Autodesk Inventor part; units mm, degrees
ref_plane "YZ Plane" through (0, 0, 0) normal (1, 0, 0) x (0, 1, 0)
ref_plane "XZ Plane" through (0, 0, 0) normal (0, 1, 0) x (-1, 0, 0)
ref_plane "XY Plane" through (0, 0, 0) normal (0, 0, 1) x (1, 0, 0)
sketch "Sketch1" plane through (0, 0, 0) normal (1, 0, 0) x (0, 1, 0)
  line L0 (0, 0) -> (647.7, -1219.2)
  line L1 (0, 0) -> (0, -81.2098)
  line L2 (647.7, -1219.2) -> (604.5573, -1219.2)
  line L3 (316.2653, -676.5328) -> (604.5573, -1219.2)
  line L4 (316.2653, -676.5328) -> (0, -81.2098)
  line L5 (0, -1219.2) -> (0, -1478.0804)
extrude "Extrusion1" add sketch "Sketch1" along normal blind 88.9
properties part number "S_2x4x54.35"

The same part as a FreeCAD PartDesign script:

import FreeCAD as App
import Part
import Sketcher
Q = App.Units.Quantity


def add_polygon(sketch, points):
    """Adds a closed chain of lines whose ends are joined by coincident constraints."""
    first, n = sketch.GeometryCount, len(points)
    for a, b in zip(points, points[1:] + points[:1]):
        sketch.addGeometry(Part.LineSegment(App.Vector(*a, 0), App.Vector(*b, 0)), False)
    for i in range(n):
        sketch.addConstraint(Sketcher.Constraint("Coincident", first + i, 2, first + (i + 1) % n, 1))

doc = App.newDocument("Part")
body = doc.addObject("PartDesign::Body", "Body")

sketch1 = body.newObject("Sketcher::SketchObject", "Sketch")
sketch1.AttachmentSupport = (doc.getObject("YZ_Plane"), [""])
sketch1.MapMode = "FlatFace"
add_polygon(sketch1, [(648, -1219), (0, 0), (0, -81), (316, -677), (605, -1219)])
sketch1.addConstraint([
    Sketcher.Constraint("Vertical", 1),
    Sketcher.Constraint("Horizontal", 4),
    Sketcher.Constraint("Coincident", 0, 2, -1, 1),
    Sketcher.Constraint("Parallel", 0, 2),
    Sketcher.Constraint("Parallel", 2, 3),
    Sketcher.Constraint("DistanceY", 3, 2, -1, 1, Q("48 in")),
    Sketcher.Constraint("DistanceX", -1, 1, 4, 2, Q("25.5 in")),
    Sketcher.Constraint("DistanceX", 4, 1, 4, 2, Q("43.1427 mm")),
    Sketcher.Constraint("DistanceX", -1, 1, 2, 2, Q("12.4514 in")),
])
pad1 = body.newObject("PartDesign::Pad", "Pad")
pad1.Profile = sketch1
pad1.Length = Q("3.5 in")

doc.recompute()
